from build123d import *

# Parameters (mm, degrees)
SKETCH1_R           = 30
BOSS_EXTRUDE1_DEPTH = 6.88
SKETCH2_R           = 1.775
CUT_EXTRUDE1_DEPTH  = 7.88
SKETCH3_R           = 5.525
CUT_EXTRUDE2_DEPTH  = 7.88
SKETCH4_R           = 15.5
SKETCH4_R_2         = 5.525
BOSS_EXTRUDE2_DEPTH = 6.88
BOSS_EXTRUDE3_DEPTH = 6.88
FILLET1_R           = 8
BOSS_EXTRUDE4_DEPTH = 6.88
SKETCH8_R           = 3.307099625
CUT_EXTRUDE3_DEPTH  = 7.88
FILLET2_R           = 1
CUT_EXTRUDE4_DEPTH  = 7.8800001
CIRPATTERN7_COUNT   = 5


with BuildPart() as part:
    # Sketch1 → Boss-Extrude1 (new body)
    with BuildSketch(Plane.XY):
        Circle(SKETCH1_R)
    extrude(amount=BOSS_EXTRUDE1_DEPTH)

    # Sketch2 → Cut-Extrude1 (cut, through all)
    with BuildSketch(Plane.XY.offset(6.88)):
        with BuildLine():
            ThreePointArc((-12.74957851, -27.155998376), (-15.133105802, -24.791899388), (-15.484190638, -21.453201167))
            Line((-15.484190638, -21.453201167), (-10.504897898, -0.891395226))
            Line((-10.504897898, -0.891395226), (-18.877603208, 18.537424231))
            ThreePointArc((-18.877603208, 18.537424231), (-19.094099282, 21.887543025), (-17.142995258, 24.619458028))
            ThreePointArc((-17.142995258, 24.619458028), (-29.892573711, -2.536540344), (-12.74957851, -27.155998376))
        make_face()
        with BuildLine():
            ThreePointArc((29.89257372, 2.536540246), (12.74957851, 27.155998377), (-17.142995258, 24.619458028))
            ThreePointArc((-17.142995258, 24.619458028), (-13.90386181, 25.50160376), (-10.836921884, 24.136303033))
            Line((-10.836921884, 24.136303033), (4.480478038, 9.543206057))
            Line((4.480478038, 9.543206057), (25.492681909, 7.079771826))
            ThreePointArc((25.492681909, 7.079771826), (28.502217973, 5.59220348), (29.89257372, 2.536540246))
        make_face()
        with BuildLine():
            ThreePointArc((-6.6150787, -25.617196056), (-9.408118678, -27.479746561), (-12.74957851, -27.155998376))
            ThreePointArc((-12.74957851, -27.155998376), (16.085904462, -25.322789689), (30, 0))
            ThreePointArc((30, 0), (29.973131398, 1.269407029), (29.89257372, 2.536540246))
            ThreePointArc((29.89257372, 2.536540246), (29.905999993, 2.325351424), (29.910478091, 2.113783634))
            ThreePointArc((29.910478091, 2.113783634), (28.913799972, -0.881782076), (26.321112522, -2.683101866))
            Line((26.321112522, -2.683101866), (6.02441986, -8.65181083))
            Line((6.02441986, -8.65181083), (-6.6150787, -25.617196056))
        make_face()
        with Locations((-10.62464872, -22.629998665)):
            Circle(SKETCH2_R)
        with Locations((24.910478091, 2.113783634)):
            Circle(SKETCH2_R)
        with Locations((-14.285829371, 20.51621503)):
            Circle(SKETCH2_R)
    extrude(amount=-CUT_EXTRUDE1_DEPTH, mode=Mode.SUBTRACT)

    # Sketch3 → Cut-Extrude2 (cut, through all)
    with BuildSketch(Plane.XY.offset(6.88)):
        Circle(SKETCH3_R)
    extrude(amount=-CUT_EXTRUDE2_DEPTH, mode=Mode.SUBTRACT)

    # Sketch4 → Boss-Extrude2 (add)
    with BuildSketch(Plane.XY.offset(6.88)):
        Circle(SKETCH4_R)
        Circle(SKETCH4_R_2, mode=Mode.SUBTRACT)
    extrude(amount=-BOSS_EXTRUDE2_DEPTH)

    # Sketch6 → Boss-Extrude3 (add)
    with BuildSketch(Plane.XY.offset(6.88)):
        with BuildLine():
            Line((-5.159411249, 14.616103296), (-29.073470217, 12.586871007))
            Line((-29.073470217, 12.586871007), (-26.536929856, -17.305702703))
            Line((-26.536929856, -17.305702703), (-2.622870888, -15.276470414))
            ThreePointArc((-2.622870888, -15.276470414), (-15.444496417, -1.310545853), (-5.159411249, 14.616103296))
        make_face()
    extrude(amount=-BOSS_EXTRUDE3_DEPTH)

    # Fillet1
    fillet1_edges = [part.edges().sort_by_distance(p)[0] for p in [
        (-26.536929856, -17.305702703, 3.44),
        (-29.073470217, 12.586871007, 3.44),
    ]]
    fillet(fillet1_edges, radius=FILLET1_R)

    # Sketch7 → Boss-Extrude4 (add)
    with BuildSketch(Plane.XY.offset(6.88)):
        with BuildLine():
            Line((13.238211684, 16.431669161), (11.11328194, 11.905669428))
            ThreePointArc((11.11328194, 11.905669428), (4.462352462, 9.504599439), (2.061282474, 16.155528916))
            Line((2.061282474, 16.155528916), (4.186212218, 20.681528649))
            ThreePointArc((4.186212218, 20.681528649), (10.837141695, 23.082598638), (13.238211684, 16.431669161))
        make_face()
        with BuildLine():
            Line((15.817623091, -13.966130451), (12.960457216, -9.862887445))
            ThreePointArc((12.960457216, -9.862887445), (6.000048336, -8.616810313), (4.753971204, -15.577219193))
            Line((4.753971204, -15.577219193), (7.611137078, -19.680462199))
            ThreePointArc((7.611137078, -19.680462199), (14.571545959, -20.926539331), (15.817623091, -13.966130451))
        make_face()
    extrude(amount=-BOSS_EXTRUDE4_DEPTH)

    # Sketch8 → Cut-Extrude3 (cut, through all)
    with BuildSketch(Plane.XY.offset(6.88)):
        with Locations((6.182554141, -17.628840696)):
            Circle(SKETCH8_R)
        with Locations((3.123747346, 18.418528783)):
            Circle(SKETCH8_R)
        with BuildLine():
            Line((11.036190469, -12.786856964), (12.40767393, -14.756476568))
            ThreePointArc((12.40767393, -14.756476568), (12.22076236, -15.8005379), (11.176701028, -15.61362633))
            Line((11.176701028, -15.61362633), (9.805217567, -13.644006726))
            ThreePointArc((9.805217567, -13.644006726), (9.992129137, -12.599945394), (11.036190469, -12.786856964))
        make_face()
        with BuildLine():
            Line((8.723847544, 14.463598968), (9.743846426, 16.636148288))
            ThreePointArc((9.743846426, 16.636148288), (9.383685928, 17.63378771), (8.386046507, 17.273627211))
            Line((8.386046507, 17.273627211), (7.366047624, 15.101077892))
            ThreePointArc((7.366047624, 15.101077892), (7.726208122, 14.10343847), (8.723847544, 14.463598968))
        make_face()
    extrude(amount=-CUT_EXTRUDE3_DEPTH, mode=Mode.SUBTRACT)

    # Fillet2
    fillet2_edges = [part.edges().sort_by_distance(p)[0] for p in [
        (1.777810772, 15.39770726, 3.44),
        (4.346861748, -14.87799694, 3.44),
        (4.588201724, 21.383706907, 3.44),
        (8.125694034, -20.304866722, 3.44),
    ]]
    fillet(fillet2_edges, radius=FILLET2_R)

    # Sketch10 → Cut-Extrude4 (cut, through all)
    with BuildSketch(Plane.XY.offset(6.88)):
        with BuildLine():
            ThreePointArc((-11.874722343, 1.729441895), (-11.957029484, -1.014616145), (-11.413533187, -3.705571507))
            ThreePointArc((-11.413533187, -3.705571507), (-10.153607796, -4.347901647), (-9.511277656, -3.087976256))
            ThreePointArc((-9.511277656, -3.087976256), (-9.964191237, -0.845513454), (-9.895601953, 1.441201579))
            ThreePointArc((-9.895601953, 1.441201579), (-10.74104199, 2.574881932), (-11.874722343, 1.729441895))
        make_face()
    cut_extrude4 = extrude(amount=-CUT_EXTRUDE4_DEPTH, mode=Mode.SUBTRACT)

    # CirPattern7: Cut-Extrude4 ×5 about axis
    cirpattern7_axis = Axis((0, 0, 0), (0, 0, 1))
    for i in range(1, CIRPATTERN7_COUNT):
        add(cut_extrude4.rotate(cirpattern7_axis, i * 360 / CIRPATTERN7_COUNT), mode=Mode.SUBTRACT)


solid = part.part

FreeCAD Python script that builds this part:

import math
import FreeCAD as App
import Part
import Sketcher


def edges_at(feature, points):
    """Names of the edges that pass closest to the given points."""
    edges = feature.Shape.Edges
    near = lambda p: min(range(len(edges)), key=lambda i: edges[i].distToShape(Part.Vertex(*p))[0])
    return sorted({f"Edge{near(p) + 1}" for p in points})

doc = App.newDocument("Part")
body = doc.addObject("PartDesign::Body", "Body")

# Sketch on XY plane
sketch1 = body.newObject("Sketcher::SketchObject", "Sketch")
sketch1.AttachmentSupport = (doc.getObject("XY_Plane"), [""])
sketch1.MapMode = "FlatFace"
sketch1.addGeometry(Part.Circle(App.Vector(0, 0, 0), App.Vector(0, 0, 1), 30), False)
sketch1.addConstraint([
    Sketcher.Constraint("Coincident", 0, 3, -1, 1),
    Sketcher.Constraint("Diameter", 0, 60.0),
])
pad1 = body.newObject("PartDesign::Pad", "Pad")
pad1.Profile = sketch1
pad1.Length = 6.88

# Sketch on XY plane
sketch2 = body.newObject("Sketcher::SketchObject", "Sketch001")
sketch2.AttachmentSupport = (doc.getObject("XY_Plane"), [""])
sketch2.MapMode = "FlatFace"
sketch2.AttachmentOffset = App.Placement(App.Vector(0, 0, 6.88), App.Rotation())
sketch2.addGeometry([
    Part.ArcOfCircle(Part.Circle(App.Vector(-10.624649, -22.629999, 0), App.Vector(0, 0, 1), 5), math.radians(166.387185), math.radians(244.850225)),  # 0
    Part.LineSegment(App.Vector(-15.484191, -21.453201, 0), App.Vector(-10.504898, -0.891395, 0)),  # 1
    Part.LineSegment(App.Vector(-10.504898, -0.891395, 0), App.Vector(-18.877603, 18.537424, 0)),  # 2
    Part.ArcOfCircle(Part.Circle(App.Vector(-14.285829, 20.516215, 0), App.Vector(0, 0, 1), 5), math.radians(124.850226), math.radians(203.313267)),  # 3
    Part.ArcOfCircle(Part.Circle(App.Vector(0, 0, 0), App.Vector(0, 0, 1), 30), math.radians(124.850226), math.radians(244.850226)),  # 4
    Part.ArcOfCircle(Part.Circle(App.Vector(0, 0, 0), App.Vector(0, 0, 1), 30), math.radians(4.850226), math.radians(124.850226)),  # 5
    Part.ArcOfCircle(Part.Circle(App.Vector(-14.285829, 20.516215, 0), App.Vector(0, 0, 1), 5), math.radians(46.387185), math.radians(124.850226)),  # 6
    Part.LineSegment(App.Vector(-10.836922, 24.136303, 0), App.Vector(4.480478, 9.543206, 0)),  # 7
    Part.LineSegment(App.Vector(4.480478, 9.543206, 0), App.Vector(25.492682, 7.079772, 0)),  # 8
    Part.ArcOfCircle(Part.Circle(App.Vector(24.910478, 2.113784, 0), App.Vector(0, 0, 1), 5), math.radians(4.850225), math.radians(83.313267)),  # 9
    Part.ArcOfCircle(Part.Circle(App.Vector(-10.624649, -22.629999, 0), App.Vector(0, 0, 1), 5), math.radians(-115.149775), math.radians(-36.686733)),  # 10
    Part.ArcOfCircle(Part.Circle(App.Vector(0, 0, 0), App.Vector(0, 0, 1), 30), math.radians(-115.149774), math.radians(0)),  # 11
    Part.ArcOfCircle(Part.Circle(App.Vector(0, 0, 0), App.Vector(0, 0, 1), 30), math.radians(0), math.radians(4.850226)),  # 12
    Part.ArcOfCircle(Part.Circle(App.Vector(24.910478, 2.113784, 0), App.Vector(0, 0, 1), 5), math.radians(0), math.radians(4.850224)),  # 13
    Part.ArcOfCircle(Part.Circle(App.Vector(24.910478, 2.113784, 0), App.Vector(0, 0, 1), 5), math.radians(-73.612815), math.radians(0)),  # 14
    Part.LineSegment(App.Vector(26.321113, -2.683102, 0), App.Vector(6.02442, -8.651811, 0)),  # 15
    Part.LineSegment(App.Vector(6.02442, -8.651811, 0), App.Vector(-6.615079, -25.617196, 0)),  # 16
    Part.Circle(App.Vector(-10.624649, -22.629999, 0), App.Vector(0, 0, 1), 1.775),  # 17
    Part.Circle(App.Vector(24.910478, 2.113784, 0), App.Vector(0, 0, 1), 1.775),  # 18
    Part.Circle(App.Vector(-14.285829, 20.516215, 0), App.Vector(0, 0, 1), 1.775),  # 19
], False)
sketch2.addConstraint([
    Sketcher.Constraint("Tangent", 0, 1, 1, 1),
    Sketcher.Constraint("Coincident", 1, 2, 2, 1),
    Sketcher.Constraint("Tangent", 2, 2, 3, 2),
    Sketcher.Constraint("Tangent", 3, 1, 4, 1),
    Sketcher.Constraint("Tangent", 4, 2, 0, 2),
    Sketcher.Constraint("Tangent", 5, 2, 6, 2),
    Sketcher.Constraint("Tangent", 6, 1, 7, 1),
    Sketcher.Constraint("Coincident", 7, 2, 8, 1),
    Sketcher.Constraint("Tangent", 8, 2, 9, 2),
    Sketcher.Constraint("Tangent", 9, 1, 5, 1),
    Sketcher.Constraint("Tangent", 10, 1, 11, 1),
    Sketcher.Constraint("Tangent", 11, 2, 12, 1),
    Sketcher.Constraint("Tangent", 12, 2, 13, 2),
    Sketcher.Constraint("Tangent", 13, 1, 14, 2),
    Sketcher.Constraint("Tangent", 14, 1, 15, 1),
    Sketcher.Constraint("Coincident", 15, 2, 16, 1),
    Sketcher.Constraint("Tangent", 16, 2, 10, 2),
    Sketcher.Constraint("Coincident", 4, 3, -1, 1),
    Sketcher.Constraint("Coincident", 5, 3, -1, 1),
    Sketcher.Constraint("Coincident", 11, 3, -1, 1),
    Sketcher.Constraint("Coincident", 6, 3, 3, 3),
    Sketcher.Constraint("Coincident", 10, 3, 0, 3),
    Sketcher.Constraint("Coincident", 13, 3, 9, 3),
    Sketcher.Constraint("Coincident", 17, 3, 0, 3),
    Sketcher.Constraint("Coincident", 18, 3, 9, 3),
    Sketcher.Constraint("Coincident", 19, 3, 3, 3),
    Sketcher.Constraint("Equal", 0, 3),
    Sketcher.Constraint("Equal", 4, 5),
    Sketcher.Constraint("Equal", 6, 9),
    Sketcher.Constraint("Equal", 9, 10),
    Sketcher.Constraint("Equal", 11, 12),
    Sketcher.Constraint("Equal", 13, 14),
    Sketcher.Constraint("Equal", 17, 18),
    Sketcher.Constraint("Equal", 18, 19),
    Sketcher.Constraint("PointOnObject", 11, 2, -1),
    Sketcher.Constraint("Horizontal", 18, 3, 13, 1),
    Sketcher.Constraint("Equal", 1, 2),
    Sketcher.Constraint("Equal", 2, 7),
    Sketcher.Constraint("Equal", 7, 8),
    Sketcher.Constraint("Equal", 8, 15),
    Sketcher.Constraint("Equal", 15, 16),
    Sketcher.Constraint("Radius", 0, 5.0),
    Sketcher.Constraint("Radius", 4, 30.0),
    Sketcher.Constraint("Diameter", 17, 3.55),
    Sketcher.Constraint("DistanceY", 0, 3, -1, 1, 22.629999),
    Sketcher.Constraint("DistanceY", 0, 1, -1, 1, 21.453201),
    Sketcher.Constraint("DistanceY", 14, 1, -1, 1, 2.683102),
    Sketcher.Constraint("DistanceY", 1, 2, 7, 2, 10.434601),
])
pocket1 = body.newObject("PartDesign::Pocket", "Pocket")
pocket1.Profile = sketch2
pocket1.Type = "ThroughAll"

# Sketch on XY plane
sketch3 = body.newObject("Sketcher::SketchObject", "Sketch002")
sketch3.AttachmentSupport = (doc.getObject("XY_Plane"), [""])
sketch3.MapMode = "FlatFace"
sketch3.AttachmentOffset = App.Placement(App.Vector(0, 0, 6.88), App.Rotation())
sketch3.addGeometry(Part.Circle(App.Vector(0, 0, 0), App.Vector(0, 0, 1), 5.525), False)
sketch3.addConstraint([
    Sketcher.Constraint("Coincident", 0, 3, -1, 1),
    Sketcher.Constraint("Diameter", 0, 11.05),
])
pocket2 = body.newObject("PartDesign::Pocket", "Pocket001")
pocket2.Profile = sketch3
pocket2.Type = "ThroughAll"

# Sketch on XY plane
sketch4 = body.newObject("Sketcher::SketchObject", "Sketch003")
sketch4.AttachmentSupport = (doc.getObject("XY_Plane"), [""])
sketch4.MapMode = "FlatFace"
sketch4.AttachmentOffset = App.Placement(App.Vector(0, 0, 6.88), App.Rotation())
sketch4.addGeometry([
    Part.Circle(App.Vector(0, 0, 0), App.Vector(0, 0, 1), 15.5),
    Part.Circle(App.Vector(0, 0, 0), App.Vector(0, 0, 1), 5.525),
], False)
sketch4.addConstraint([
    Sketcher.Constraint("Coincident", 0, 3, -1, 1),
    Sketcher.Constraint("Coincident", 1, 3, -1, 1),
    Sketcher.Constraint("Diameter", 0, 31.0),
    Sketcher.Constraint("Diameter", 1, 11.05),
])
pad2 = body.newObject("PartDesign::Pad", "Pad001")
pad2.Profile = sketch4
pad2.Length = 6.88
pad2.Reversed = True

# Sketch on XY plane
sketch5 = body.newObject("Sketcher::SketchObject", "Sketch004")
sketch5.AttachmentSupport = (doc.getObject("XY_Plane"), [""])
sketch5.MapMode = "FlatFace"
sketch5.AttachmentOffset = App.Placement(App.Vector(0, 0, 6.88), App.Rotation())
sketch5.addGeometry([
    Part.LineSegment(App.Vector(-5.159411, 14.616103, 0), App.Vector(-29.07347, 12.586871, 0)),
    Part.LineSegment(App.Vector(-29.07347, 12.586871, 0), App.Vector(-26.53693, -17.305703, 0)),
    Part.LineSegment(App.Vector(-26.53693, -17.305703, 0), App.Vector(-2.622871, -15.27647, 0)),
    Part.ArcOfCircle(Part.Circle(App.Vector(0, 0, 0), App.Vector(0, 0, 1), 15.5), math.radians(109.442777), math.radians(260.257675)),
], False)
sketch5.addConstraint([
    Sketcher.Constraint("Coincident", 0, 2, 1, 1),
    Sketcher.Constraint("Coincident", 1, 2, 2, 1),
    Sketcher.Constraint("Coincident", 2, 2, 3, 2),
    Sketcher.Constraint("Coincident", 3, 1, 0, 1),
    Sketcher.Constraint("Coincident", 3, 3, -1, 1),
    Sketcher.Constraint("Perpendicular", 0, 1),
    Sketcher.Constraint("Perpendicular", 1, 2),
    Sketcher.Constraint("Equal", 0, 2),
    Sketcher.Constraint("Radius", 3, 15.5),
    Sketcher.Constraint("Distance", 0, 24.0),
    Sketcher.Constraint("Distance", 1, 30.0),
    Sketcher.Constraint("DistanceX", 0, 2, 2, 2, 26.450599),
])
pad3 = body.newObject("PartDesign::Pad", "Pad002")
pad3.Profile = sketch5
pad3.Length = 6.88
pad3.Reversed = True
doc.recompute()

fillet = body.newObject("PartDesign::Fillet", "Fillet")
fillet.Base = (pad3, edges_at(pad3, [(-26.537, -17.306, 3.44), (-29.073, 12.587, 3.44)]))
fillet.Radius = 8

# Sketch on XY plane
sketch6 = body.newObject("Sketcher::SketchObject", "Sketch005")
sketch6.AttachmentSupport = (doc.getObject("XY_Plane"), [""])
sketch6.MapMode = "FlatFace"
sketch6.AttachmentOffset = App.Placement(App.Vector(0, 0, 6.88), App.Rotation())
sketch6.addGeometry([
    Part.LineSegment(App.Vector(11.113282, 11.905669, 0), App.Vector(13.238212, 16.431669, 0)),  # 0
    Part.ArcOfCircle(Part.Circle(App.Vector(8.712212, 18.556599, 0), App.Vector(0, 0, 1), 5), math.radians(-25.149774), math.radians(154.850226)),  # 1
    Part.LineSegment(App.Vector(4.186212, 20.681529, 0), App.Vector(2.061282, 16.155529, 0)),  # 2
    Part.ArcOfCircle(Part.Circle(App.Vector(6.587282, 14.030599, 0), App.Vector(0, 0, 1), 5), math.radians(154.850226), math.radians(334.850226)),  # 3
    Part.LineSegment(App.Vector(15.817623, -13.96613, 0), App.Vector(12.960457, -9.862887, 0)),  # 4
    Part.ArcOfCircle(Part.Circle(App.Vector(8.857214, -12.720053, 0), App.Vector(0, 0, 1), 5), math.radians(34.850226), math.radians(214.850226)),  # 5
    Part.LineSegment(App.Vector(4.753971, -15.577219, 0), App.Vector(7.611137, -19.680462, 0)),  # 6
    Part.ArcOfCircle(Part.Circle(App.Vector(11.71438, -16.823296, 0), App.Vector(0, 0, 1), 5), math.radians(-145.149774), math.radians(34.850226)),  # 7
], False)
sketch6.addConstraint([
    Sketcher.Constraint("Tangent", 0, 2, 1, 1),
    Sketcher.Constraint("Tangent", 1, 2, 2, 1),
    Sketcher.Constraint("Tangent", 2, 2, 3, 1),
    Sketcher.Constraint("Tangent", 3, 2, 0, 1),
    Sketcher.Constraint("Tangent", 4, 2, 5, 1),
    Sketcher.Constraint("Tangent", 5, 2, 6, 1),
    Sketcher.Constraint("Tangent", 6, 2, 7, 1),
    Sketcher.Constraint("Tangent", 7, 2, 4, 1),
    Sketcher.Constraint("Equal", 1, 3),
    Sketcher.Constraint("Equal", 3, 5),
    Sketcher.Constraint("Equal", 5, 7),
    Sketcher.Constraint("Equal", 2, 4),
    Sketcher.Constraint("Radius", 1, 5.0),
    Sketcher.Constraint("Distance", 0, 5.0),
    Sketcher.Constraint("DistanceY", 3, 3, 1, 3, 4.526),
    Sketcher.Constraint("DistanceX", 1, 2, 5, 3, 4.671002),
    Sketcher.Constraint("DistanceY", -1, 1, 1, 3, 18.556599),
    Sketcher.Constraint("DistanceX", -1, 1, 1, 3, 8.712212),
    Sketcher.Constraint("DistanceX", -1, 1, 7, 3, 11.71438),
    Sketcher.Constraint("DistanceY", 5, 2, -1, 1, 15.577219),
])
pad4 = body.newObject("PartDesign::Pad", "Pad003")
pad4.Profile = sketch6
pad4.Length = 6.88
pad4.Reversed = True

# Sketch on XY plane
sketch7 = body.newObject("Sketcher::SketchObject", "Sketch006")
sketch7.AttachmentSupport = (doc.getObject("XY_Plane"), [""])
sketch7.MapMode = "FlatFace"
sketch7.AttachmentOffset = App.Placement(App.Vector(0, 0, 6.88), App.Rotation())
sketch7.addGeometry([
    Part.Circle(App.Vector(6.182554, -17.628841, 0), App.Vector(0, 0, 1), 3.3071),  # 0
    Part.Circle(App.Vector(3.123747, 18.418529, 0), App.Vector(0, 0, 1), 3.3071),  # 1
    Part.LineSegment(App.Vector(12.407674, -14.756477, 0), App.Vector(11.03619, -12.786857, 0)),  # 2
    Part.ArcOfCircle(Part.Circle(App.Vector(10.420704, -13.215432, 0), App.Vector(0, 0, 1), 0.75), math.radians(34.850226), math.radians(214.850226)),  # 3
    Part.LineSegment(App.Vector(9.805218, -13.644007, 0), App.Vector(11.176701, -15.613626, 0)),  # 4
    Part.ArcOfCircle(Part.Circle(App.Vector(11.792187, -15.185051, 0), App.Vector(0, 0, 1), 0.75), math.radians(-145.149774), math.radians(34.850226)),  # 5
    Part.LineSegment(App.Vector(8.723848, 14.463599, 0), App.Vector(9.743846, 16.636148, 0)),  # 6
    Part.ArcOfCircle(Part.Circle(App.Vector(9.064946, 16.954888, 0), App.Vector(0, 0, 1), 0.75), math.radians(-25.149774), math.radians(154.850226)),  # 7
    Part.LineSegment(App.Vector(8.386047, 17.273627, 0), App.Vector(7.366048, 15.101078, 0)),  # 8
    Part.ArcOfCircle(Part.Circle(App.Vector(8.044948, 14.782338, 0), App.Vector(0, 0, 1), 0.75), math.radians(154.850226), math.radians(334.850226)),  # 9
], False)
sketch7.addConstraint([
    Sketcher.Constraint("Tangent", 2, 2, 3, 1),
    Sketcher.Constraint("Tangent", 3, 2, 4, 1),
    Sketcher.Constraint("Tangent", 4, 2, 5, 1),
    Sketcher.Constraint("Tangent", 5, 2, 2, 1),
    Sketcher.Constraint("Tangent", 6, 2, 7, 1),
    Sketcher.Constraint("Tangent", 7, 2, 8, 1),
    Sketcher.Constraint("Tangent", 8, 2, 9, 1),
    Sketcher.Constraint("Tangent", 9, 2, 6, 1),
    Sketcher.Constraint("Equal", 0, 1),
    Sketcher.Constraint("Equal", 3, 5),
    Sketcher.Constraint("Equal", 5, 7),
    Sketcher.Constraint("Equal", 7, 9),
    Sketcher.Constraint("Equal", 4, 6),
    Sketcher.Constraint("Radius", 3, 0.75),
    Sketcher.Constraint("Diameter", 0, 6.614199),
    Sketcher.Constraint("DistanceX", 9, 3, 7, 3, 1.019999),
    Sketcher.Constraint("DistanceX", -1, 1, 4, 2, 11.176701),
    Sketcher.Constraint("DistanceY", -1, 1, 9, 2, 14.463599),
    Sketcher.Constraint("DistanceX", 1, 3, 7, 3, 5.941199),
    Sketcher.Constraint("DistanceX", 7, 3, 6, 2, 0.6789),
    Sketcher.Constraint("DistanceY", 7, 2, 1, 3, 1.144902),
    Sketcher.Constraint("DistanceY", 0, 3, -1, 1, 17.628841),
    Sketcher.Constraint("DistanceY", 3, 3, -1, 1, 13.215432),
    Sketcher.Constraint("DistanceY", 5, 3, -1, 1, 15.185051),
    Sketcher.Constraint("DistanceX", 0, 3, 3, 3, 4.23815),
    Sketcher.Constraint("DistanceX", 1, 3, 5, 3, 8.66844),
])
pocket3 = body.newObject("PartDesign::Pocket", "Pocket002")
pocket3.Profile = sketch7
pocket3.Type = "ThroughAll"
doc.recompute()

fillet2 = body.newObject("PartDesign::Fillet", "Fillet001")
fillet2.Base = (pocket3, edges_at(pocket3, [
    (1.778, 15.398, 3.44),
    (4.347, -14.878, 3.44),
    (4.588, 21.384, 3.44),
    (8.126, -20.305, 3.44),
]))
fillet2.Radius = 1

# Sketch on XY plane
sketch8 = body.newObject("Sketcher::SketchObject", "Sketch007")
sketch8.AttachmentSupport = (doc.getObject("XY_Plane"), [""])
sketch8.MapMode = "FlatFace"
sketch8.AttachmentOffset = App.Placement(App.Vector(0, 0, 6.88), App.Rotation())
sketch8.addGeometry([
    Part.ArcOfCircle(Part.Circle(App.Vector(0, 0, 0), App.Vector(0, 0, 1), 12), math.radians(171.713667), math.radians(197.986785)),
    Part.ArcOfCircle(Part.Circle(App.Vector(-10.462405, -3.396774, 0), App.Vector(0, 0, 1), 1), math.radians(-162.013215), math.radians(17.986785)),
    Part.ArcOfCircle(Part.Circle(App.Vector(0, 0, 0), App.Vector(0, 0, 1), 10), math.radians(171.713667), math.radians(197.986785)),
    Part.ArcOfCircle(Part.Circle(App.Vector(-10.885162, 1.585322, 0), App.Vector(0, 0, 1), 1), math.radians(-8.286333), math.radians(171.713667)),
], False)
sketch8.addConstraint([
    Sketcher.Constraint("Tangent", 0, 2, 1, 1),
    Sketcher.Constraint("Tangent", 1, 2, 2, 2),
    Sketcher.Constraint("Tangent", 2, 1, 3, 1),
    Sketcher.Constraint("Tangent", 3, 2, 0, 1),
    Sketcher.Constraint("Coincident", 0, 3, -1, 1),
    Sketcher.Constraint("Coincident", 2, 3, -1, 1),
    Sketcher.Constraint("Radius", 0, 12.0),
    Sketcher.Constraint("Radius", 1, 1.0),
    Sketcher.Constraint("DistanceX", 2, 1, -1, 1, 9.895602),
    Sketcher.Constraint("DistanceY", 0, 2, -1, 1, 3.705572),
])
pocket4 = body.newObject("PartDesign::Pocket", "Pocket003")
pocket4.Profile = sketch8
pocket4.Type = "ThroughAll"
doc.recompute()

polarpattern = body.newObject("PartDesign::PolarPattern", "PolarPattern")
polarpattern.Originals = [pocket4]
polarpattern.Axis = (doc.getObject("Z_Axis"), [""])
polarpattern.Angle = 360
polarpattern.Occurrences = 5
body.Tip = polarpattern

doc.recompute()
